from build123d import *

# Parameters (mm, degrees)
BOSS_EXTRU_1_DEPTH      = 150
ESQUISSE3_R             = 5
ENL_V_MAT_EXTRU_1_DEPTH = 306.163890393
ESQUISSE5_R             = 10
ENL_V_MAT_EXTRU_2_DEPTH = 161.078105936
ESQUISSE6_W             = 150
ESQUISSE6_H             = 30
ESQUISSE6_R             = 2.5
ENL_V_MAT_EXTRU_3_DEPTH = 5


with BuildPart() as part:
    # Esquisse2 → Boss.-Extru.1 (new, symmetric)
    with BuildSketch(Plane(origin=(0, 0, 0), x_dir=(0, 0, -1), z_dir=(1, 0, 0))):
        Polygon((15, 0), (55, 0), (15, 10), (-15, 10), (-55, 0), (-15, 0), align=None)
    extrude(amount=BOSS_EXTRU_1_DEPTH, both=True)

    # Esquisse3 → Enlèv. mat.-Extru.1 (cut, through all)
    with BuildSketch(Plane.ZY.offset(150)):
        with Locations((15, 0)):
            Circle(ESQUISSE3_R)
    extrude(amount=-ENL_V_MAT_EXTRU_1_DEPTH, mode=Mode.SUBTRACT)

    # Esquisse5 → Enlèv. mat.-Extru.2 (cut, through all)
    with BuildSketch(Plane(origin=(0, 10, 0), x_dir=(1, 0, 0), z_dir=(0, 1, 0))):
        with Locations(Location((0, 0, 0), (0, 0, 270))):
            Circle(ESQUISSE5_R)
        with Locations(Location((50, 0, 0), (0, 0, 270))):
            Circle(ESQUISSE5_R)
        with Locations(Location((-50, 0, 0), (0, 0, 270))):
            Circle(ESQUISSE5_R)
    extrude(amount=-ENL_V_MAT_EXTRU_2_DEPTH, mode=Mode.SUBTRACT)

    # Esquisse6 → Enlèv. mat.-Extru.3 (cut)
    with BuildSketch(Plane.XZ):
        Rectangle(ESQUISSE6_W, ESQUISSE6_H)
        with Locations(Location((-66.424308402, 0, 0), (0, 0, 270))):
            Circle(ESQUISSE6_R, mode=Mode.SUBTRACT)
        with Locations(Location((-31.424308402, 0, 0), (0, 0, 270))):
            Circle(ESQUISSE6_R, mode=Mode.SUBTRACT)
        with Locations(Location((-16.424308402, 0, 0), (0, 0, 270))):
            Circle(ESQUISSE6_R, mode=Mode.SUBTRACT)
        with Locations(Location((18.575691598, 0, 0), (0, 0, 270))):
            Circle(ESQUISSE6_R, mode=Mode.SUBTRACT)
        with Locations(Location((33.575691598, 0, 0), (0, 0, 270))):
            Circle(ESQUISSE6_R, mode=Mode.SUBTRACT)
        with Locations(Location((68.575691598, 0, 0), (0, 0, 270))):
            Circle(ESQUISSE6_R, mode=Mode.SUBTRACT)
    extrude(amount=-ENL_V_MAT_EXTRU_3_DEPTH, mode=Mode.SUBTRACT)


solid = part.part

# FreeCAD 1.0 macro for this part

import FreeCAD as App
import Part
import Sketcher

doc = App.newDocument("Part")
params = doc.addObject("Spreadsheet::Sheet", "Params")
for row, (alias, value) in enumerate([
    ("sketch1_height", "30 mm"),
    ("sketch1_height2", "110 mm"),
    ("pad1_length", "300 mm"),
    ("sketch2_diameter", "10 mm"),
    ("sketch3_diameter", "20 mm"),
    ("sketch4_diameter", "5 mm"),
    ("sketch4_width", "150 mm"),
    ("sketch4_height", "30 mm"),
    ("pocket3_length", "5 mm"),
], start=1):
    params.set(f"A{row}", alias)
    params.set(f"B{row}", "=" + value)
    params.setAlias(f"B{row}", alias)

body = doc.addObject("PartDesign::Body", "Body")

# Sketch on YZ plane
sketch1 = doc.addObject("Sketcher::SketchObject", "Sketch")
body.addObject(sketch1)
sketch1.AttachmentSupport = (doc.YZ_Plane, [""])
sketch1.MapMode = "FlatFace"
sketch1.addGeometry([
    Part.LineSegment(App.Vector(0, -55, 0), App.Vector(10, -15, 0)),
    Part.LineSegment(App.Vector(10, -15, 0), App.Vector(10, 15, 0)),
    Part.LineSegment(App.Vector(10, 15, 0), App.Vector(0, 55, 0)),
    Part.LineSegment(App.Vector(0, 55, 0), App.Vector(0, -55, 0)),
], False)
sketch1.addConstraint([
    Sketcher.Constraint("Coincident", 0, 2, 1, 1),
    Sketcher.Constraint("Coincident", 1, 2, 2, 1),
    Sketcher.Constraint("Coincident", 2, 2, 3, 1),
    Sketcher.Constraint("Coincident", 3, 2, 0, 1),
    Sketcher.Constraint("Vertical", 1),
    Sketcher.Constraint("Vertical", 3),
    Sketcher.Constraint("Symmetric", 2, 2, 3, 2, -1, 1),
    Sketcher.Constraint("Equal", 0, 2),
    Sketcher.Constraint("DistanceY", 1, 1, 1, 2, 30.0),
    Sketcher.Constraint("DistanceY", 3, 2, 3, 1, 110.0),
    Sketcher.Constraint("DistanceX", -1, 1, 0, 2, 10.0),
])
sketch1.setExpression("Constraints[8]", "Params.sketch1_height")
sketch1.setExpression("Constraints[9]", "Params.sketch1_height2")
pad1 = doc.addObject("PartDesign::Pad", "Pad")
body.addObject(pad1)
pad1.Profile = sketch1
pad1.setExpression("Length", "Params.pad1_length")
pad1.Midplane = True

# Sketch on YZ plane
sketch2 = doc.addObject("Sketcher::SketchObject", "Sketch001")
body.addObject(sketch2)
sketch2.AttachmentSupport = (doc.YZ_Plane, [""])
sketch2.MapMode = "FlatFace"
sketch2.AttachmentOffset = App.Placement(App.Vector(0, 0, -150), App.Rotation())
sketch2.addGeometry(Part.Circle(App.Vector(0, 15, 0), App.Vector(0, 0, 1), 5), False)
sketch2.addConstraint([
    Sketcher.Constraint("PointOnObject", 0, 3, -2),
    Sketcher.Constraint("Diameter", 0, 10.0),
    Sketcher.Constraint("DistanceY", -1, 1, 0, 3, 15.0),
])
sketch2.setExpression("Constraints[1]", "Params.sketch2_diameter")
pocket1 = doc.addObject("PartDesign::Pocket", "Pocket")
body.addObject(pocket1)
pocket1.Profile = sketch2
pocket1.Type = "ThroughAll"
pocket1.Reversed = True

# Sketch on XZ plane
sketch3 = doc.addObject("Sketcher::SketchObject", "Sketch002")
body.addObject(sketch3)
sketch3.AttachmentSupport = (doc.XZ_Plane, [""])
sketch3.MapMode = "FlatFace"
sketch3.AttachmentOffset = App.Placement(App.Vector(0, 0, -10), App.Rotation())
sketch3.addGeometry([
    Part.Circle(App.Vector(0, 0, 0), App.Vector(0, 0, 1), 10),
    Part.Circle(App.Vector(50, 0, 0), App.Vector(0, 0, 1), 10),
    Part.Circle(App.Vector(-50, 0, 0), App.Vector(0, 0, 1), 10),
], False)
sketch3.addConstraint([
    Sketcher.Constraint("Coincident", 0, 3, -1, 1),
    Sketcher.Constraint("Equal", 0, 1),
    Sketcher.Constraint("Equal", 1, 2),
    Sketcher.Constraint("Symmetric", 1, 3, 2, 3, -1, 1),
    Sketcher.Constraint("PointOnObject", 1, 3, -1),
    Sketcher.Constraint("Diameter", 0, 20.0),
    Sketcher.Constraint("DistanceX", -1, 1, 1, 3, 50.0),
])
sketch3.setExpression("Constraints[5]", "Params.sketch3_diameter")
pocket2 = doc.addObject("PartDesign::Pocket", "Pocket001")
body.addObject(pocket2)
pocket2.Profile = sketch3
pocket2.Type = "ThroughAll"
pocket2.Reversed = True

# Sketch on XZ plane
sketch4 = doc.addObject("Sketcher::SketchObject", "Sketch003")
body.addObject(sketch4)
sketch4.AttachmentSupport = (doc.XZ_Plane, [""])
sketch4.MapMode = "FlatFace"
sketch4.addGeometry([
    Part.LineSegment(App.Vector(-75, 15, 0), App.Vector(-75, -15, 0)),  # 0
    Part.LineSegment(App.Vector(-75, -15, 0), App.Vector(75, -15, 0)),  # 1
    Part.LineSegment(App.Vector(75, -15, 0), App.Vector(75, 15, 0)),  # 2
    Part.LineSegment(App.Vector(75, 15, 0), App.Vector(-75, 15, 0)),  # 3
    Part.Circle(App.Vector(-66.4, 0, 0), App.Vector(0, 0, 1), 2.5),  # 4
    Part.Circle(App.Vector(-31.4, 0, 0), App.Vector(0, 0, 1), 2.5),  # 5
    Part.Circle(App.Vector(-16.4, 0, 0), App.Vector(0, 0, 1), 2.5),  # 6
    Part.Circle(App.Vector(18.6, 0, 0), App.Vector(0, 0, 1), 2.5),  # 7
    Part.Circle(App.Vector(33.6, 0, 0), App.Vector(0, 0, 1), 2.5),  # 8
    Part.Circle(App.Vector(68.6, 0, 0), App.Vector(0, 0, 1), 2.5),  # 9
], False)
sketch4.addConstraint([
    Sketcher.Constraint("Coincident", 0, 2, 1, 1),
    Sketcher.Constraint("Coincident", 1, 2, 2, 1),
    Sketcher.Constraint("Coincident", 2, 2, 3, 1),
    Sketcher.Constraint("Coincident", 3, 2, 0, 1),
    Sketcher.Constraint("Vertical", 0),
    Sketcher.Constraint("Horizontal", 1),
    Sketcher.Constraint("Vertical", 2),
    Sketcher.Constraint("Horizontal", 3),
    Sketcher.Constraint("Equal", 4, 5),
    Sketcher.Constraint("Equal", 5, 6),
    Sketcher.Constraint("Equal", 6, 7),
    Sketcher.Constraint("Equal", 7, 8),
    Sketcher.Constraint("Equal", 8, 9),
    Sketcher.Constraint("Symmetric", 0, 2, 2, 2, -1, 1),
    Sketcher.Constraint("PointOnObject", 4, 3, -1),
    Sketcher.Constraint("PointOnObject", 5, 3, -1),
    Sketcher.Constraint("PointOnObject", 6, 3, -1),
    Sketcher.Constraint("PointOnObject", 7, 3, -1),
    Sketcher.Constraint("PointOnObject", 8, 3, -1),
    Sketcher.Constraint("PointOnObject", 9, 3, -1),
    Sketcher.Constraint("Diameter", 4, 5.0),
    Sketcher.Constraint("DistanceX", 1, 1, 1, 2, 150.0),
    Sketcher.Constraint("DistanceY", 0, 2, 0, 1, 30.0),
    Sketcher.Constraint("DistanceX", 4, 3, 5, 3, 35.0),
    Sketcher.Constraint("DistanceX", 5, 3, 6, 3, 15.0),
    Sketcher.Constraint("DistanceX", 6, 3, 7, 3, 35.0),
    Sketcher.Constraint("DistanceX", 7, 3, 8, 3, 15.0),
    Sketcher.Constraint("DistanceX", 8, 3, 9, 3, 35.0),
    Sketcher.Constraint("DistanceX", 4, 3, -1, 1, 66.424308),
])
sketch4.setExpression("Constraints[20]", "Params.sketch4_diameter")
sketch4.setExpression("Constraints[21]", "Params.sketch4_width")
sketch4.setExpression("Constraints[22]", "Params.sketch4_height")
pocket3 = doc.addObject("PartDesign::Pocket", "Pocket002")
body.addObject(pocket3)
pocket3.Profile = sketch4
pocket3.setExpression("Length", "Params.pocket3_length")

doc.recompute()
